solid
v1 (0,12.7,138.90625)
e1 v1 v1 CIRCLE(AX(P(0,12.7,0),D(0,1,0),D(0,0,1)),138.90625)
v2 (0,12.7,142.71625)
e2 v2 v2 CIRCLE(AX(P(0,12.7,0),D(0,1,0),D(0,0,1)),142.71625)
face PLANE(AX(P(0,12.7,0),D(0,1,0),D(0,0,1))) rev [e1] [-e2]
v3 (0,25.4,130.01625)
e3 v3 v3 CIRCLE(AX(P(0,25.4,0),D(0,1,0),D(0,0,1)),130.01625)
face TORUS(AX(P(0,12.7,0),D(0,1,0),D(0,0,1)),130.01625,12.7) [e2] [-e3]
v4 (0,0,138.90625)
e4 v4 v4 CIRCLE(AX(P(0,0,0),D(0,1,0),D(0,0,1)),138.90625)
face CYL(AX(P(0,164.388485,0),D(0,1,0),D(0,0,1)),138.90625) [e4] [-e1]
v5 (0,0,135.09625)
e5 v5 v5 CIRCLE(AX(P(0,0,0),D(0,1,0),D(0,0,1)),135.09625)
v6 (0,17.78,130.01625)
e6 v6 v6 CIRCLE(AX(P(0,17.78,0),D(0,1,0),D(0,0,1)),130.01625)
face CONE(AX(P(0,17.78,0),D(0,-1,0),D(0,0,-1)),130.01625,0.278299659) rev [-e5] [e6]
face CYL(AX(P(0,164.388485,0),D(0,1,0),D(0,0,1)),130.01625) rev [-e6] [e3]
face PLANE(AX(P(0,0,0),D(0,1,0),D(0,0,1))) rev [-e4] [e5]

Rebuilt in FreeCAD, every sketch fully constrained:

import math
import FreeCAD as App
import Part
import Sketcher
Q = App.Units.Quantity

doc = App.newDocument("Part")
params = doc.addObject("Spreadsheet::Sheet", "Params")
for row, (alias, value) in enumerate([
    ("sketch1_radius", "0.5 in"),
    ("sketch1_height", "0.5 in"),
    ("sketch1_height2", "0.3 in"),
    ("sketch1_width", "0.15 in"),
    ("revolution_angle", "360 deg"),
], start=1):
    params.set(f"A{row}", alias)
    params.set(f"B{row}", "=" + value)
    params.setAlias(f"B{row}", alias)

body = doc.addObject("PartDesign::Body", "Body")

sketch1 = body.newObject("Sketcher::SketchObject", "Sketch")
sketch1.AttachmentSupport = (doc.getObject("XY_Plane"), [""])
sketch1.MapMode = "FlatFace"
sketch1.addGeometry(Part.LineSegment(App.Vector(135.1, 0, 0), App.Vector(138.9, 0, 0)), False)
sketch1.addGeometry(Part.LineSegment(App.Vector(138.9, 0, 0), App.Vector(138.9, 12.7, 0)), False)
sketch1.addGeometry(Part.LineSegment(App.Vector(138.9, 12.7, 0), App.Vector(142.7, 12.7, 0)), False)
sketch1.addGeometry(Part.ArcOfCircle(Part.Circle(App.Vector(130, 12.7, 0), App.Vector(0, 0, 1), 12.7), math.radians(0), math.radians(90)), False)
sketch1.addGeometry(Part.LineSegment(App.Vector(130, 25.4, 0), App.Vector(130, 17.8, 0)), False)
sketch1.addGeometry(Part.LineSegment(App.Vector(130, 17.8, 0), App.Vector(135.1, 0, 0)), False)
sketch1.addConstraint(Sketcher.Constraint("Coincident", 0, 2, 1, 1))
sketch1.addConstraint(Sketcher.Constraint("Coincident", 1, 2, 2, 1))
sketch1.addConstraint(Sketcher.Constraint("Coincident", 2, 2, 3, 1))
sketch1.addConstraint(Sketcher.Constraint("Coincident", 3, 2, 4, 1))
sketch1.addConstraint(Sketcher.Constraint("Coincident", 4, 2, 5, 1))
sketch1.addConstraint(Sketcher.Constraint("Coincident", 5, 2, 0, 1))
sketch1.addConstraint(Sketcher.Constraint("Horizontal", 0))
sketch1.addConstraint(Sketcher.Constraint("Vertical", 1))
sketch1.addConstraint(Sketcher.Constraint("Horizontal", 2))
sketch1.addConstraint(Sketcher.Constraint("Vertical", 4))
sketch1.addConstraint(Sketcher.Constraint("PointOnObject", 0, 2, -1))
sketch1.addConstraint(Sketcher.Constraint("Horizontal", 3, 3, 1, 2))
sketch1.addConstraint(Sketcher.Constraint("Equal", 0, 2))
sketch1.addConstraint(Sketcher.Constraint("Radius", 3, Q("0.5 in")))
sketch1.addConstraint(Sketcher.Constraint("DistanceY", 1, 1, 1, 2, Q("0.5 in")))
sketch1.addConstraint(Sketcher.Constraint("DistanceY", 4, 2, 4, 1, Q("0.3 in")))
sketch1.addConstraint(Sketcher.Constraint("DistanceX", 0, 1, 0, 2, Q("0.15 in")))
sketch1.addConstraint(Sketcher.Constraint("DistanceX", 3, 2, 2, 2, Q("0.5 in")))
sketch1.addConstraint(Sketcher.Constraint("DistanceX", -1, 1, 0, 2, Q("5.46875 in")))
sketch1.setExpression("Constraints[13]", "Params.sketch1_radius")
sketch1.setExpression("Constraints[14]", "Params.sketch1_height")
sketch1.setExpression("Constraints[15]", "Params.sketch1_height2")
sketch1.setExpression("Constraints[16]", "Params.sketch1_width")
revolution = body.newObject("PartDesign::Revolution", "Revolution")
revolution.Profile = sketch1
revolution.ReferenceAxis = (sketch1, ["V_Axis"])
revolution.setExpression("Angle", "Params.revolution_angle")

doc.recompute()
